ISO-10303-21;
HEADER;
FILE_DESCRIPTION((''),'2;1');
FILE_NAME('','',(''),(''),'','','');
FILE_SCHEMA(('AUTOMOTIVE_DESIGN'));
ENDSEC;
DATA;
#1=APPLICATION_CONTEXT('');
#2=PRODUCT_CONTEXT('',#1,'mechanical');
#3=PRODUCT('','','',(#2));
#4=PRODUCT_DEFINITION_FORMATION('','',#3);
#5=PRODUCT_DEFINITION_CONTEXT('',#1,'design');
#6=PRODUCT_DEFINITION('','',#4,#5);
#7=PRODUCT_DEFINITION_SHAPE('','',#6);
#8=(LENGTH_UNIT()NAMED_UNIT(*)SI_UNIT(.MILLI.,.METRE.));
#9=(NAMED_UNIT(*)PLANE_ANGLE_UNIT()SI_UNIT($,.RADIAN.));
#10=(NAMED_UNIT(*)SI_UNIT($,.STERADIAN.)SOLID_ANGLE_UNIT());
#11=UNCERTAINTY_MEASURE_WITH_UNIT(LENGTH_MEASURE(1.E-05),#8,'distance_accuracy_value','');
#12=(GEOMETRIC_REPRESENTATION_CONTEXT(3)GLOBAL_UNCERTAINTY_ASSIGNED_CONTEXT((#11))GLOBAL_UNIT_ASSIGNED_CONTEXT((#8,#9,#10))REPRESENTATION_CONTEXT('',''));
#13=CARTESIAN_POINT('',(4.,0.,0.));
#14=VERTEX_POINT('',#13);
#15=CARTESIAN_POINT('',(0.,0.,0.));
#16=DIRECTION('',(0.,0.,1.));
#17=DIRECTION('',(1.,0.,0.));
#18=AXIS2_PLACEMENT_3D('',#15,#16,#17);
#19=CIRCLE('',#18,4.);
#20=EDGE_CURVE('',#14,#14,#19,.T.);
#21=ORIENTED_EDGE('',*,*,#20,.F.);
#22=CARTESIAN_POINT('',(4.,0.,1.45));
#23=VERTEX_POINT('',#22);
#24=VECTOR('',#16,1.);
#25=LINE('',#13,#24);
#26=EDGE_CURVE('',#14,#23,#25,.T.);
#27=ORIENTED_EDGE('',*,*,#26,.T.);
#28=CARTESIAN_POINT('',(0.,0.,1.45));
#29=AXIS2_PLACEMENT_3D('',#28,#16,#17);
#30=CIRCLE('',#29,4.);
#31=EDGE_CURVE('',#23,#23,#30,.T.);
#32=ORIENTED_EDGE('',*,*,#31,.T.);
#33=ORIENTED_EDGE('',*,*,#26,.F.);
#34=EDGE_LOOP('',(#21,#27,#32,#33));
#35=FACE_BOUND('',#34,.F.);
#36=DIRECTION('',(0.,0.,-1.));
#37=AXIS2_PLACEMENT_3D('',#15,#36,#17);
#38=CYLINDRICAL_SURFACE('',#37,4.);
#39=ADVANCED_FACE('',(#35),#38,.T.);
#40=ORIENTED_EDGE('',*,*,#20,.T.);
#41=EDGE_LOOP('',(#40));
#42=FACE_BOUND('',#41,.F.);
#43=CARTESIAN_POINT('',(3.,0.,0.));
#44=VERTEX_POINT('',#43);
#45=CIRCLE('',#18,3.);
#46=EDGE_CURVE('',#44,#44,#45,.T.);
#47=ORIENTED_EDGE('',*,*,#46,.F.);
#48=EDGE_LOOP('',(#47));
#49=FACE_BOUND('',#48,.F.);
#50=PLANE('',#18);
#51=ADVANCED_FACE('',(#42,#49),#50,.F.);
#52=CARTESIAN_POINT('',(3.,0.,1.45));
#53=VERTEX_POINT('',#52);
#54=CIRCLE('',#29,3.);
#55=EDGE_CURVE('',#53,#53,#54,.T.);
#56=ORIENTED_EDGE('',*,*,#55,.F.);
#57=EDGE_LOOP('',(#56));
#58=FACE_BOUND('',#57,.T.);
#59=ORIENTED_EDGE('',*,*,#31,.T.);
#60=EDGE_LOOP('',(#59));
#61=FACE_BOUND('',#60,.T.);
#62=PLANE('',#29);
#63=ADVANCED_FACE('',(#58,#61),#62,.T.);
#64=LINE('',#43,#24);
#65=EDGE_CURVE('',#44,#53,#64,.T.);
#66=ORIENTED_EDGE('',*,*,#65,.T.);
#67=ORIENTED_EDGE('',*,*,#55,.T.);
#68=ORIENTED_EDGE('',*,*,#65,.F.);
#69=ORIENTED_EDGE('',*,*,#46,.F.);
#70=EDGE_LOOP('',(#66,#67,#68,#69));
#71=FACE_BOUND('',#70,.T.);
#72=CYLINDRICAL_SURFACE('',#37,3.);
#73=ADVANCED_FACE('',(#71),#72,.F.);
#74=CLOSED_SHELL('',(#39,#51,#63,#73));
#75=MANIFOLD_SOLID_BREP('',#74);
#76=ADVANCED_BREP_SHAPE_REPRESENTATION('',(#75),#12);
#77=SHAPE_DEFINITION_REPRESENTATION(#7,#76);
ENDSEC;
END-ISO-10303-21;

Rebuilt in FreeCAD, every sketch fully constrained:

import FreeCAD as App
import Part
import Sketcher
from FreeCAD import Vector

doc = App.newDocument("Part")
body = doc.addObject("PartDesign::Body", "Body")

sketch1 = body.newObject("Sketcher::SketchObject", "Sketch")
sketch1.AttachmentSupport = (doc.getObject("XY_Plane"), [""])
sketch1.MapMode = "FlatFace"
sketch1.addGeometry([
    Part.Circle(Vector(0, 0, 0), Vector(0, 0, 1), 4),
    Part.Circle(Vector(0, 0, 0), Vector(0, 0, 1), 3),
], False)
sketch1.addConstraint([
    Sketcher.Constraint("Coincident", 0, 3, -1, 1),
    Sketcher.Constraint("Coincident", 1, 3, -1, 1),
    Sketcher.Constraint("Diameter", 0, 8.0),
    Sketcher.Constraint("Diameter", 1, 6.0),
])
pad1 = body.newObject("PartDesign::Pad", "Pad")
pad1.Profile = sketch1
pad1.Length = 1.45

doc.recompute()
